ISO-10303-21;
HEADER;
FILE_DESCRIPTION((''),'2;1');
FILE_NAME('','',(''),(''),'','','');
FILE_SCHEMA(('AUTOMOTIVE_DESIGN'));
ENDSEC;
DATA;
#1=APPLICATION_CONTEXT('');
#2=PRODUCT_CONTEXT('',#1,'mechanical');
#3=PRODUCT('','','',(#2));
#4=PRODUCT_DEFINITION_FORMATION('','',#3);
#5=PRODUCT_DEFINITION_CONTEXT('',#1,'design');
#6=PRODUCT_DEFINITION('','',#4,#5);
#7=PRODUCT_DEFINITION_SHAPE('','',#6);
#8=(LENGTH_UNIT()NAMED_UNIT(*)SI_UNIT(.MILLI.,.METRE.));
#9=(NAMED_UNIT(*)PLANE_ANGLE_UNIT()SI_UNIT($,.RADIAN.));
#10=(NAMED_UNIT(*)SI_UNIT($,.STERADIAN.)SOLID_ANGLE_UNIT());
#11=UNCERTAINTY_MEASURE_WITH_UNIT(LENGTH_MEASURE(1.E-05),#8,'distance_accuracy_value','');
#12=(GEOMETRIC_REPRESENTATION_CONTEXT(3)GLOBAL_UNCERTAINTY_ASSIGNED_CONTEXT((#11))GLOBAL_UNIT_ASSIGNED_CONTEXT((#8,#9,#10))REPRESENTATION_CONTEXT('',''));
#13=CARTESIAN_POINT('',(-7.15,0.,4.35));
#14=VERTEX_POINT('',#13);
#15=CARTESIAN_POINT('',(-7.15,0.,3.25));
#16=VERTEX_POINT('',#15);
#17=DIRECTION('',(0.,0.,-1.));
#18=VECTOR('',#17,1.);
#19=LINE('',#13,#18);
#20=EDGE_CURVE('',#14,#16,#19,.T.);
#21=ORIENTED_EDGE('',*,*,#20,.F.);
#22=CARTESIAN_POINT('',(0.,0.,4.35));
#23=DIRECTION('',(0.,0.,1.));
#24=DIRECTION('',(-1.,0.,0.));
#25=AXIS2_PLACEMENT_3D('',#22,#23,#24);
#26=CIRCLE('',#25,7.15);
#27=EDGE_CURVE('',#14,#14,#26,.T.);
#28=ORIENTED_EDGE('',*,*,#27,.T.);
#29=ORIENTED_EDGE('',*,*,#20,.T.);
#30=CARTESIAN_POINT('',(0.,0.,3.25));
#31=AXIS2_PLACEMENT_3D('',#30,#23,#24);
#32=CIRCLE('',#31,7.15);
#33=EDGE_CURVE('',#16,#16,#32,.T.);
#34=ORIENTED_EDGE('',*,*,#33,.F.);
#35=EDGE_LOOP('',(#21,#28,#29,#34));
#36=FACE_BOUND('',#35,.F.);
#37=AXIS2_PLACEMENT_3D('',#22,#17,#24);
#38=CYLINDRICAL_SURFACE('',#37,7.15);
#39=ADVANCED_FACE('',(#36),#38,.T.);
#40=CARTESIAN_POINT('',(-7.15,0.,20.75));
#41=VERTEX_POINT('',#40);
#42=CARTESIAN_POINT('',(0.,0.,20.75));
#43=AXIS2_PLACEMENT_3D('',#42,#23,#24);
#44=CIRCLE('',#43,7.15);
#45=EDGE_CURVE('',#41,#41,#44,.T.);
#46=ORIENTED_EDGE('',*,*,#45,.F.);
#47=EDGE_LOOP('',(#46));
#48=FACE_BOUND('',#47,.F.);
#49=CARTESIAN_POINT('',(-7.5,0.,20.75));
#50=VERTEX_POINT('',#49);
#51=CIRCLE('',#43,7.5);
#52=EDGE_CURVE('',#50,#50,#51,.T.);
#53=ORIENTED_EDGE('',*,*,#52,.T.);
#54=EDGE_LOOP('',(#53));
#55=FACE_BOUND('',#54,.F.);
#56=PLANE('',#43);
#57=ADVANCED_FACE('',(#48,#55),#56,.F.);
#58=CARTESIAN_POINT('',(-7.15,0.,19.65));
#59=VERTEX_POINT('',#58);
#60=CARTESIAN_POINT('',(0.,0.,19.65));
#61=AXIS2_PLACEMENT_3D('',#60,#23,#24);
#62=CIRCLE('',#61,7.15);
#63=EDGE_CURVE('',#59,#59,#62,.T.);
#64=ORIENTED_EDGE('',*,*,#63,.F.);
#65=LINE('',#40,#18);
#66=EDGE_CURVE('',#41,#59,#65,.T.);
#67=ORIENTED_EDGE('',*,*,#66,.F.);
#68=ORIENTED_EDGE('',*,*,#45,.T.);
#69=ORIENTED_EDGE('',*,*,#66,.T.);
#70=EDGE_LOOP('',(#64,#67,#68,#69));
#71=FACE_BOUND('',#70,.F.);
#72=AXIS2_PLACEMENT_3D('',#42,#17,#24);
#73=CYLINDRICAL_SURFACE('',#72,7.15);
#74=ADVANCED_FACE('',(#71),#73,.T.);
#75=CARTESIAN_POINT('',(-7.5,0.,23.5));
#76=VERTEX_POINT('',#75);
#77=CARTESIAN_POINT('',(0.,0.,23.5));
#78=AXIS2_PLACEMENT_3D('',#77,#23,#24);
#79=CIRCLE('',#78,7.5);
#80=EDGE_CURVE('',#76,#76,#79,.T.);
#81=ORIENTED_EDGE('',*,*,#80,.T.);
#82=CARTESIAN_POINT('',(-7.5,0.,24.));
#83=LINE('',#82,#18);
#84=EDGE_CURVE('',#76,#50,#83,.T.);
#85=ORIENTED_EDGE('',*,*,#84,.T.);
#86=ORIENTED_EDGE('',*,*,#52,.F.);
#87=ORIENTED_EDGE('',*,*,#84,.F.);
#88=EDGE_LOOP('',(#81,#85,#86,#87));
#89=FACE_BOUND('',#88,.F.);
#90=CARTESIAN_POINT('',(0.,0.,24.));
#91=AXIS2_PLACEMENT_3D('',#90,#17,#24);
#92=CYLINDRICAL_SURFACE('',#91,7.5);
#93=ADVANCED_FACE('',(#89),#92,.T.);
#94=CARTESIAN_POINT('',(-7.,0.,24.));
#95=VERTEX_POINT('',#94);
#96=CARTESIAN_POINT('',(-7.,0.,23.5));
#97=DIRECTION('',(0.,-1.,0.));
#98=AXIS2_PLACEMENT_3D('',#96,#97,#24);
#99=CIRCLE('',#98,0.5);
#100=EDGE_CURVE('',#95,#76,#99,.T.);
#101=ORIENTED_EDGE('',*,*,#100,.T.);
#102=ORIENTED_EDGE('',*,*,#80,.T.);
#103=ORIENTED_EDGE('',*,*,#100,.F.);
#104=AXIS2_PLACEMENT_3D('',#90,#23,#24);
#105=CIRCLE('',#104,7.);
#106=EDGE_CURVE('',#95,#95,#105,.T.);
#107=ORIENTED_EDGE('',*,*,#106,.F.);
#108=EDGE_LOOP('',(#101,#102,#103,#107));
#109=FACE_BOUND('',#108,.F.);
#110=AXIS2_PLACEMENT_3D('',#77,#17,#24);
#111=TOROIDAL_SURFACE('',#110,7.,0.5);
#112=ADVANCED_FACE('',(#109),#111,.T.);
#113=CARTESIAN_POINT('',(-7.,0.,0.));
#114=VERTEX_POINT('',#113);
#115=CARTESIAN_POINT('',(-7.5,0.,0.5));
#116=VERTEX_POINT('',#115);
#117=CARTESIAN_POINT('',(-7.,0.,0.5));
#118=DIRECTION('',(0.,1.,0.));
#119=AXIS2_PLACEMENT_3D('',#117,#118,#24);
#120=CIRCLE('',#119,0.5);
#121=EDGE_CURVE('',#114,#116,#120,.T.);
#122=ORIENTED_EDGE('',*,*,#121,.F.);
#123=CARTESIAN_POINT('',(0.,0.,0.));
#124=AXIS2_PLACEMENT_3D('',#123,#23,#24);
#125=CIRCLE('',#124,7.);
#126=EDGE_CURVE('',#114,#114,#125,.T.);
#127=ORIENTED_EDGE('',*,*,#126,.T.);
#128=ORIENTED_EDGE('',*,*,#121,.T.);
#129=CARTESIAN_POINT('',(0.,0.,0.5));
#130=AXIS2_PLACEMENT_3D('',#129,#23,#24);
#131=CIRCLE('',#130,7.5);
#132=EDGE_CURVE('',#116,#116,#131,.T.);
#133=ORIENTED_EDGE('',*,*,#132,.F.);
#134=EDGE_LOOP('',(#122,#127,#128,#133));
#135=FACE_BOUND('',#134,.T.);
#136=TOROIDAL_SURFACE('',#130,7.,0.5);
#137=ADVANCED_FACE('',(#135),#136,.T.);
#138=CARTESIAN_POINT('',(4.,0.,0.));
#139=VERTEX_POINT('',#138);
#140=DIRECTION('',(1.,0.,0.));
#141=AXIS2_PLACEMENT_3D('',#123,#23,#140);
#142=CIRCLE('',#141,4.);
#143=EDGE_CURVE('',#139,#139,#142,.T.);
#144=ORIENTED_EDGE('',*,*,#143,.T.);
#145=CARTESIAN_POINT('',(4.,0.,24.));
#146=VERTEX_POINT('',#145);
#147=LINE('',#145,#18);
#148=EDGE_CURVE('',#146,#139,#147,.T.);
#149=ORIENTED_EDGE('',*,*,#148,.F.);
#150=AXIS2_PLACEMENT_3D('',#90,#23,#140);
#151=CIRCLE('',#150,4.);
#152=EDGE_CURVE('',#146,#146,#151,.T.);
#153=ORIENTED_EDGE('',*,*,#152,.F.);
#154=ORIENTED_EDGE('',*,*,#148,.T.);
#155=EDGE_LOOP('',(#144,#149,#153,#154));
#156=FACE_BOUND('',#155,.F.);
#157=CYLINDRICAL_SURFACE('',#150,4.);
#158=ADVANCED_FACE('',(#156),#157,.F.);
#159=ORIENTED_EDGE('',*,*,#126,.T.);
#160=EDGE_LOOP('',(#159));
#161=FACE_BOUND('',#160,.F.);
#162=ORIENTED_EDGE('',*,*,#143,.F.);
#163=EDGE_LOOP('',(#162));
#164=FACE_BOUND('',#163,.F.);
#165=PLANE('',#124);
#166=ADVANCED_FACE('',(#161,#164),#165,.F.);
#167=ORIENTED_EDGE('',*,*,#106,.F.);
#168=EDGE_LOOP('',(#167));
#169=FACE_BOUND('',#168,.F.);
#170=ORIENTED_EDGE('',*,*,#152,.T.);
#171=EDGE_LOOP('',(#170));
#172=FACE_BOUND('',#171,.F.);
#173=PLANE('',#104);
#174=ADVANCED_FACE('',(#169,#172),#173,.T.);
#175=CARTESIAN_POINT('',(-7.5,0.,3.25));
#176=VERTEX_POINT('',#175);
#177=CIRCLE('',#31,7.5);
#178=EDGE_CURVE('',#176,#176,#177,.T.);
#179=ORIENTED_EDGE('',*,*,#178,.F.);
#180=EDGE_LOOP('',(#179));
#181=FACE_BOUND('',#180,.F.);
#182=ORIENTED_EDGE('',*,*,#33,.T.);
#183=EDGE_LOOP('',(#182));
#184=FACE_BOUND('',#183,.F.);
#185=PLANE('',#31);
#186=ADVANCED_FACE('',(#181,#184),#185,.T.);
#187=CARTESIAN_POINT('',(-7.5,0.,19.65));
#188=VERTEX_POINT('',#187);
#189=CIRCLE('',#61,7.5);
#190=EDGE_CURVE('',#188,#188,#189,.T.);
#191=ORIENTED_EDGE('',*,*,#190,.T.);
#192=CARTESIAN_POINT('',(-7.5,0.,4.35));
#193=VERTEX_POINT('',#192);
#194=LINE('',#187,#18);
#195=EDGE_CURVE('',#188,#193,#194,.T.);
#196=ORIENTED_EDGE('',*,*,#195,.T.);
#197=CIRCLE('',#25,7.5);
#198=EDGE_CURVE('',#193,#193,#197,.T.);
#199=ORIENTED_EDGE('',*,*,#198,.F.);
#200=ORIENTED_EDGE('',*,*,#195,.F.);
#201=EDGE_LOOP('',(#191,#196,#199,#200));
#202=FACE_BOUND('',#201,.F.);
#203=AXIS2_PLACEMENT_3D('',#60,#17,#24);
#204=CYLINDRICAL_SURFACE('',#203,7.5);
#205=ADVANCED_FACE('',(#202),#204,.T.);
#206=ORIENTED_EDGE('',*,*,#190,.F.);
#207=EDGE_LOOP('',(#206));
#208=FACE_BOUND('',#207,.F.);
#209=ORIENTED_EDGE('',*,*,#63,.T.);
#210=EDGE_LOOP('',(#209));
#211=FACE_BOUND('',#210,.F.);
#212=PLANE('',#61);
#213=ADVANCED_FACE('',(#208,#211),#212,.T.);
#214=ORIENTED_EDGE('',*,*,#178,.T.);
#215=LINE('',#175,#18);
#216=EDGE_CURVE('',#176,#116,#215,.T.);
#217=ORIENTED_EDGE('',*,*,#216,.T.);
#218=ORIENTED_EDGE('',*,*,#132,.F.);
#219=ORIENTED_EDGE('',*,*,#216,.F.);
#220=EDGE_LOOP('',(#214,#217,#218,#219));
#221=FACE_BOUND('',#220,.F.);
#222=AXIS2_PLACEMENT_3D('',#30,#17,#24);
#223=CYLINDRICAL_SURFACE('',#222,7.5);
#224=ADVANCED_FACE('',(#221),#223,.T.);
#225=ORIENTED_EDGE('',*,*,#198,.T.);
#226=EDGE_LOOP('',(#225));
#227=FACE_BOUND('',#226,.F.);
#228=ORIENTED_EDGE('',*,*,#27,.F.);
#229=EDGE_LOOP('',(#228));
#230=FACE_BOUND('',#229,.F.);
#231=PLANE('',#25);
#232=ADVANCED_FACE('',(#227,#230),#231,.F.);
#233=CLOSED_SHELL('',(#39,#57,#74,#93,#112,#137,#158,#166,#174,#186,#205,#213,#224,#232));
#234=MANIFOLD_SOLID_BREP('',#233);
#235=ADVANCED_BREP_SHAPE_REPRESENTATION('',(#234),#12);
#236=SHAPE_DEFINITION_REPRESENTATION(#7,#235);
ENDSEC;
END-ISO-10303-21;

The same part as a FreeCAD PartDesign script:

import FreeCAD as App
import Part
import Sketcher

V = App.Vector
Q = App.Units.Quantity


def edges_at(feature, points):
    """Names of the edges that pass closest to the given points."""
    edges = feature.Shape.Edges
    near = lambda p: min(range(len(edges)), key=lambda i: edges[i].distToShape(Part.Vertex(*p))[0])
    return sorted({f"Edge{near(p) + 1}" for p in points})


def add_polygon(sketch, points):
    """Adds a closed chain of lines whose ends are joined by coincident constraints."""
    first, n = sketch.GeometryCount, len(points)
    for a, b in zip(points, points[1:] + points[:1]):
        sketch.addGeometry(Part.LineSegment(App.Vector(*a, 0), App.Vector(*b, 0)), False)
    for i in range(n):
        sketch.addConstraint(Sketcher.Constraint("Coincident", first + i, 2, first + (i + 1) % n, 1))

doc = App.newDocument("Part")
body = doc.addObject("PartDesign::Body", "Body")

# Sketch on XZ plane
sketch1 = body.newObject("Sketcher::SketchObject", "Sketch")
sketch1.AttachmentSupport = (doc.getObject("XZ_Plane"), [""])
sketch1.MapMode = "FlatFace"
add_polygon(sketch1, [(-7.5, 0), (0, 0), (0, 24), (-7.5, 24), (-7.5, 20.75), (-7.15, 20.75), (-7.15, 19.65), (-7.5, 19.65), (-7.5, 4.35), (-7.15, 4.35), (-7.15, 3.25), (-7.5, 3.25)])  # lines 0-11
sketch1.addConstraint([
    Sketcher.Constraint("Horizontal", 0),
    Sketcher.Constraint("Vertical", 1),
    Sketcher.Constraint("Horizontal", 2),
    Sketcher.Constraint("Vertical", 3),
    Sketcher.Constraint("Horizontal", 4),
    Sketcher.Constraint("Vertical", 5),
    Sketcher.Constraint("Horizontal", 6),
    Sketcher.Constraint("Vertical", 7),
    Sketcher.Constraint("Horizontal", 8),
    Sketcher.Constraint("Vertical", 9),
    Sketcher.Constraint("Horizontal", 10),
    Sketcher.Constraint("Vertical", 11),
    Sketcher.Constraint("Coincident", 0, 2, -1, 1),
    Sketcher.Constraint("Vertical", 3, 2, 6, 2),
    Sketcher.Constraint("Vertical", 5, 2, 8, 2),
    Sketcher.Constraint("Vertical", 7, 2, 10, 2),
    Sketcher.Constraint("Equal", 5, 9),
    Sketcher.Constraint("Equal", 3, 11),
    Sketcher.Constraint("DistanceY", 1, 1, 1, 2, Q("24 mm")),
    Sketcher.Constraint("DistanceX", 0, 1, 0, 2, Q("7.5 mm")),
    Sketcher.Constraint("DistanceY", 5, 2, 5, 1, Q("1.1 mm")),
    Sketcher.Constraint("DistanceY", 7, 2, 7, 1, Q("15.3 mm")),
    Sketcher.Constraint("DistanceX", 4, 1, 4, 2, Q("0.35 mm")),
])
revolution = body.newObject("PartDesign::Revolution", "Revolution")
revolution.Profile = sketch1
revolution.ReferenceAxis = (sketch1, ["V_Axis"])
revolution.Angle = 360

# Sketch on XY plane
sketch2 = body.newObject("Sketcher::SketchObject", "Sketch001")
sketch2.AttachmentSupport = (doc.getObject("XY_Plane"), [""])
sketch2.MapMode = "FlatFace"
sketch2.AttachmentOffset = App.Placement(V(0, 0, 24), App.Rotation())
sketch2.addGeometry(Part.Circle(V(0, 0, 0), V(0, 0, 1), 4), False)
sketch2.addConstraint([
    Sketcher.Constraint("Coincident", 0, 3, -1, 1),
    Sketcher.Constraint("Diameter", 0, Q("8 mm")),
])
pocket1 = body.newObject("PartDesign::Pocket", "Pocket")
pocket1.Profile = sketch2
pocket1.Length = 25
doc.recompute()

fillet = body.newObject("PartDesign::Fillet", "Fillet")
fillet.Base = (pocket1, edges_at(pocket1, [(7.5, 0, 0), (7.5, 0, 24)]))
fillet.Radius = 0.5

doc.recompute()
